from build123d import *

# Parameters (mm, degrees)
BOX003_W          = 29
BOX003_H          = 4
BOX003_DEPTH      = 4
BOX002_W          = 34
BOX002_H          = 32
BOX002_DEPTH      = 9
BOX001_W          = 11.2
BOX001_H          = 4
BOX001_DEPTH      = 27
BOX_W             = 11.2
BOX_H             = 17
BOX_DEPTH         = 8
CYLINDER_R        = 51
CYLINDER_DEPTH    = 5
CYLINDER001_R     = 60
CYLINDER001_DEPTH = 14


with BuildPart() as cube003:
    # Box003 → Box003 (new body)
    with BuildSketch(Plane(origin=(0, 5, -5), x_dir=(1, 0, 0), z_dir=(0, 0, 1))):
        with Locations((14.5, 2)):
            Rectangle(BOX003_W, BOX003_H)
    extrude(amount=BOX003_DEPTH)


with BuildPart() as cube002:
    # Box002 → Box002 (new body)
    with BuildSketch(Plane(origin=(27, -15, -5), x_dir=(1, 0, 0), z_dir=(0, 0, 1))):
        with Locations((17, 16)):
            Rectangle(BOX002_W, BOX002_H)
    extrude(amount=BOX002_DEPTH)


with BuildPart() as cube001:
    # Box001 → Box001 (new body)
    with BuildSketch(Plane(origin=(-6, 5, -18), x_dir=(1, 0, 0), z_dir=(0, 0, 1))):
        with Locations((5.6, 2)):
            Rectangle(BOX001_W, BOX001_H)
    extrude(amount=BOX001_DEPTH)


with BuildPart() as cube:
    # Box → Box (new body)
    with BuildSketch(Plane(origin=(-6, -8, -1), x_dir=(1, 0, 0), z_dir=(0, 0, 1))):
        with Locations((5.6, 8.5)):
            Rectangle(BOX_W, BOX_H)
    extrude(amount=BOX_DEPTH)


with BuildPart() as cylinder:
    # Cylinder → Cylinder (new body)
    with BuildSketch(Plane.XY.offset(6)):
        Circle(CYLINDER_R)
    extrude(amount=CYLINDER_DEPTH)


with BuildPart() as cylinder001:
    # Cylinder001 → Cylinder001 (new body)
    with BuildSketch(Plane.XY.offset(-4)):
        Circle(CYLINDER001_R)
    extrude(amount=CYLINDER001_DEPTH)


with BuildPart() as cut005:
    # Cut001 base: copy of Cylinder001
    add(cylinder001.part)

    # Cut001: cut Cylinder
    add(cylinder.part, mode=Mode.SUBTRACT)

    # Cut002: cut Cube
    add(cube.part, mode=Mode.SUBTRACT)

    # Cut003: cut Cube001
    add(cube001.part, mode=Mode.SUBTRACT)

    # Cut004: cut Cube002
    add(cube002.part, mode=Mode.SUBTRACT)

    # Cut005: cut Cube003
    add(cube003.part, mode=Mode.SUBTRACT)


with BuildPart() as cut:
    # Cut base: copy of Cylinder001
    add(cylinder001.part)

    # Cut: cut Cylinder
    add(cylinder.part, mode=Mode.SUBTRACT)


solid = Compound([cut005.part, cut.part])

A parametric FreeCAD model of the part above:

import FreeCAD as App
import Part
import Sketcher
from FreeCAD import Vector
Q = App.Units.Quantity


def add_polygon(sketch, points):
    """Adds a closed chain of lines whose ends are joined by coincident constraints."""
    first, n = sketch.GeometryCount, len(points)
    for a, b in zip(points, points[1:] + points[:1]):
        sketch.addGeometry(Part.LineSegment(App.Vector(*a, 0), App.Vector(*b, 0)), False)
    for i in range(n):
        sketch.addConstraint(Sketcher.Constraint("Coincident", first + i, 2, first + (i + 1) % n, 1))

doc = App.newDocument("Part")
body = doc.addObject("PartDesign::Body", "Body")

# Sketch on XY plane
sketch1 = body.newObject("Sketcher::SketchObject", "Sketch")
sketch1.AttachmentSupport = (doc.getObject("XY_Plane"), [""])
sketch1.MapMode = "FlatFace"
sketch1.AttachmentOffset = App.Placement(Vector(0, 0, -5), App.Rotation())
add_polygon(sketch1, [(0, 9), (0, 5), (29, 5), (29, 9)])  # lines 0-3
sketch1.addConstraint(Sketcher.Constraint("Vertical", 0))
sketch1.addConstraint(Sketcher.Constraint("Horizontal", 1))
sketch1.addConstraint(Sketcher.Constraint("Vertical", 2))
sketch1.addConstraint(Sketcher.Constraint("Horizontal", 3))
sketch1.addConstraint(Sketcher.Constraint("PointOnObject", 0, 2, -2))
sketch1.addConstraint(Sketcher.Constraint("DistanceX", 1, 1, 1, 2, Q("29 mm")))
sketch1.addConstraint(Sketcher.Constraint("DistanceY", 0, 2, 0, 1, Q("4 mm")))
sketch1.addConstraint(Sketcher.Constraint("DistanceY", -1, 1, 0, 2, Q("5 mm")))
pad1 = body.newObject("PartDesign::Pad", "Pad")
pad1.Profile = sketch1
pad1.Length = 4
body2 = doc.addObject("PartDesign::Body", "Body001")

# Sketch on XY plane
sketch2 = body2.newObject("Sketcher::SketchObject", "Sketch001")
sketch2.AttachmentSupport = (doc.getObject("XY_Plane001"), [""])
sketch2.MapMode = "FlatFace"
sketch2.AttachmentOffset = App.Placement(Vector(0, 0, -5), App.Rotation())
add_polygon(sketch2, [(27, 17), (27, -15), (61, -15), (61, 17)])  # lines 0-3
sketch2.addConstraint(Sketcher.Constraint("Vertical", 0))
sketch2.addConstraint(Sketcher.Constraint("Horizontal", 1))
sketch2.addConstraint(Sketcher.Constraint("Vertical", 2))
sketch2.addConstraint(Sketcher.Constraint("Horizontal", 3))
sketch2.addConstraint(Sketcher.Constraint("DistanceX", 1, 1, 1, 2, Q("34 mm")))
sketch2.addConstraint(Sketcher.Constraint("DistanceY", 0, 2, 0, 1, Q("32 mm")))
sketch2.addConstraint(Sketcher.Constraint("DistanceX", -1, 1, 0, 2, Q("27 mm")))
sketch2.addConstraint(Sketcher.Constraint("DistanceY", 0, 2, -1, 1, Q("15 mm")))
pad2 = body2.newObject("PartDesign::Pad", "Pad001")
pad2.Profile = sketch2
pad2.Length = 9
body3 = doc.addObject("PartDesign::Body", "Body002")

# Sketch on XY plane
sketch3 = body3.newObject("Sketcher::SketchObject", "Sketch002")
sketch3.AttachmentSupport = (doc.getObject("XY_Plane002"), [""])
sketch3.MapMode = "FlatFace"
sketch3.AttachmentOffset = App.Placement(Vector(0, 0, -18), App.Rotation())
add_polygon(sketch3, [(-6, 9), (-6, 5), (5.2, 5), (5.2, 9)])  # lines 0-3
sketch3.addConstraint(Sketcher.Constraint("Vertical", 0))
sketch3.addConstraint(Sketcher.Constraint("Horizontal", 1))
sketch3.addConstraint(Sketcher.Constraint("Vertical", 2))
sketch3.addConstraint(Sketcher.Constraint("Horizontal", 3))
sketch3.addConstraint(Sketcher.Constraint("DistanceY", 0, 2, 0, 1, Q("4 mm")))
sketch3.addConstraint(Sketcher.Constraint("DistanceX", 1, 1, 1, 2, Q("11.2 mm")))
sketch3.addConstraint(Sketcher.Constraint("DistanceX", 0, 2, -1, 1, Q("6 mm")))
sketch3.addConstraint(Sketcher.Constraint("DistanceY", -1, 1, 0, 2, Q("5 mm")))
pad3 = body3.newObject("PartDesign::Pad", "Pad002")
pad3.Profile = sketch3
pad3.Length = 27
body4 = doc.addObject("PartDesign::Body", "Body003")

# Sketch on XY plane
sketch4 = body4.newObject("Sketcher::SketchObject", "Sketch003")
sketch4.AttachmentSupport = (doc.getObject("XY_Plane003"), [""])
sketch4.MapMode = "FlatFace"
sketch4.AttachmentOffset = App.Placement(Vector(0, 0, -1), App.Rotation())
add_polygon(sketch4, [(-6, 9), (-6, -8), (5, -8), (5, 9)])  # lines 0-3
sketch4.addConstraint(Sketcher.Constraint("Vertical", 0))
sketch4.addConstraint(Sketcher.Constraint("Horizontal", 1))
sketch4.addConstraint(Sketcher.Constraint("Vertical", 2))
sketch4.addConstraint(Sketcher.Constraint("Horizontal", 3))
sketch4.addConstraint(Sketcher.Constraint("DistanceY", 0, 2, 0, 1, Q("17 mm")))
sketch4.addConstraint(Sketcher.Constraint("DistanceX", 1, 1, 1, 2, Q("11.2 mm")))
sketch4.addConstraint(Sketcher.Constraint("DistanceX", 0, 2, -1, 1, Q("6 mm")))
sketch4.addConstraint(Sketcher.Constraint("DistanceY", 0, 2, -1, 1, Q("8 mm")))
pad4 = body4.newObject("PartDesign::Pad", "Pad003")
pad4.Profile = sketch4
pad4.Length = 8
body5 = doc.addObject("PartDesign::Body", "Body004")

# Sketch on XY plane
sketch5 = body5.newObject("Sketcher::SketchObject", "Sketch004")
sketch5.AttachmentSupport = (doc.getObject("XY_Plane004"), [""])
sketch5.MapMode = "FlatFace"
sketch5.AttachmentOffset = App.Placement(Vector(0, 0, 6), App.Rotation())
sketch5.addGeometry(Part.Circle(Vector(0, 0, 0), Vector(0, 0, 1), 51), False)
sketch5.addConstraint(Sketcher.Constraint("Coincident", 0, 3, -1, 1))
sketch5.addConstraint(Sketcher.Constraint("Diameter", 0, Q("102 mm")))
pad5 = body5.newObject("PartDesign::Pad", "Pad004")
pad5.Profile = sketch5
pad5.Length = 5
body6 = doc.addObject("PartDesign::Body", "Body005")

# Sketch on XY plane
sketch6 = body6.newObject("Sketcher::SketchObject", "Sketch005")
sketch6.AttachmentSupport = (doc.getObject("XY_Plane005"), [""])
sketch6.MapMode = "FlatFace"
sketch6.AttachmentOffset = App.Placement(Vector(0, 0, -4), App.Rotation())
sketch6.addGeometry(Part.Circle(Vector(0, 0, 0), Vector(0, 0, 1), 60), False)
sketch6.addConstraint(Sketcher.Constraint("Coincident", 0, 3, -1, 1))
sketch6.addConstraint(Sketcher.Constraint("Diameter", 0, Q("120 mm")))
pad6 = body6.newObject("PartDesign::Pad", "Pad005")
pad6.Profile = sketch6
pad6.Length = 14
body7 = doc.addObject("PartDesign::Body", "Body006")
doc.recompute()

body7.BaseFeature = body6
doc.recompute()

body8 = doc.addObject("PartDesign::Body", "Body007")
body8.BaseFeature = body5
boolean = body7.newObject("PartDesign::Boolean", "Boolean")
boolean.Type = "Cut"
boolean.addObjects([body8])
doc.recompute()

boolean2 = body7.newObject("PartDesign::Boolean", "Boolean001")
boolean2.Type = "Cut"
boolean2.addObjects([body4])
doc.recompute()

boolean3 = body7.newObject("PartDesign::Boolean", "Boolean002")
boolean3.Type = "Cut"
boolean3.addObjects([body3])
doc.recompute()

boolean4 = body7.newObject("PartDesign::Boolean", "Boolean003")
boolean4.Type = "Cut"
boolean4.addObjects([body2])
doc.recompute()

boolean5 = body7.newObject("PartDesign::Boolean", "Boolean004")
boolean5.Type = "Cut"
boolean5.addObjects([body])
doc.recompute()

boolean6 = body6.newObject("PartDesign::Boolean", "Boolean005")
boolean6.Type = "Cut"
boolean6.addObjects([body5])

doc.recompute()
